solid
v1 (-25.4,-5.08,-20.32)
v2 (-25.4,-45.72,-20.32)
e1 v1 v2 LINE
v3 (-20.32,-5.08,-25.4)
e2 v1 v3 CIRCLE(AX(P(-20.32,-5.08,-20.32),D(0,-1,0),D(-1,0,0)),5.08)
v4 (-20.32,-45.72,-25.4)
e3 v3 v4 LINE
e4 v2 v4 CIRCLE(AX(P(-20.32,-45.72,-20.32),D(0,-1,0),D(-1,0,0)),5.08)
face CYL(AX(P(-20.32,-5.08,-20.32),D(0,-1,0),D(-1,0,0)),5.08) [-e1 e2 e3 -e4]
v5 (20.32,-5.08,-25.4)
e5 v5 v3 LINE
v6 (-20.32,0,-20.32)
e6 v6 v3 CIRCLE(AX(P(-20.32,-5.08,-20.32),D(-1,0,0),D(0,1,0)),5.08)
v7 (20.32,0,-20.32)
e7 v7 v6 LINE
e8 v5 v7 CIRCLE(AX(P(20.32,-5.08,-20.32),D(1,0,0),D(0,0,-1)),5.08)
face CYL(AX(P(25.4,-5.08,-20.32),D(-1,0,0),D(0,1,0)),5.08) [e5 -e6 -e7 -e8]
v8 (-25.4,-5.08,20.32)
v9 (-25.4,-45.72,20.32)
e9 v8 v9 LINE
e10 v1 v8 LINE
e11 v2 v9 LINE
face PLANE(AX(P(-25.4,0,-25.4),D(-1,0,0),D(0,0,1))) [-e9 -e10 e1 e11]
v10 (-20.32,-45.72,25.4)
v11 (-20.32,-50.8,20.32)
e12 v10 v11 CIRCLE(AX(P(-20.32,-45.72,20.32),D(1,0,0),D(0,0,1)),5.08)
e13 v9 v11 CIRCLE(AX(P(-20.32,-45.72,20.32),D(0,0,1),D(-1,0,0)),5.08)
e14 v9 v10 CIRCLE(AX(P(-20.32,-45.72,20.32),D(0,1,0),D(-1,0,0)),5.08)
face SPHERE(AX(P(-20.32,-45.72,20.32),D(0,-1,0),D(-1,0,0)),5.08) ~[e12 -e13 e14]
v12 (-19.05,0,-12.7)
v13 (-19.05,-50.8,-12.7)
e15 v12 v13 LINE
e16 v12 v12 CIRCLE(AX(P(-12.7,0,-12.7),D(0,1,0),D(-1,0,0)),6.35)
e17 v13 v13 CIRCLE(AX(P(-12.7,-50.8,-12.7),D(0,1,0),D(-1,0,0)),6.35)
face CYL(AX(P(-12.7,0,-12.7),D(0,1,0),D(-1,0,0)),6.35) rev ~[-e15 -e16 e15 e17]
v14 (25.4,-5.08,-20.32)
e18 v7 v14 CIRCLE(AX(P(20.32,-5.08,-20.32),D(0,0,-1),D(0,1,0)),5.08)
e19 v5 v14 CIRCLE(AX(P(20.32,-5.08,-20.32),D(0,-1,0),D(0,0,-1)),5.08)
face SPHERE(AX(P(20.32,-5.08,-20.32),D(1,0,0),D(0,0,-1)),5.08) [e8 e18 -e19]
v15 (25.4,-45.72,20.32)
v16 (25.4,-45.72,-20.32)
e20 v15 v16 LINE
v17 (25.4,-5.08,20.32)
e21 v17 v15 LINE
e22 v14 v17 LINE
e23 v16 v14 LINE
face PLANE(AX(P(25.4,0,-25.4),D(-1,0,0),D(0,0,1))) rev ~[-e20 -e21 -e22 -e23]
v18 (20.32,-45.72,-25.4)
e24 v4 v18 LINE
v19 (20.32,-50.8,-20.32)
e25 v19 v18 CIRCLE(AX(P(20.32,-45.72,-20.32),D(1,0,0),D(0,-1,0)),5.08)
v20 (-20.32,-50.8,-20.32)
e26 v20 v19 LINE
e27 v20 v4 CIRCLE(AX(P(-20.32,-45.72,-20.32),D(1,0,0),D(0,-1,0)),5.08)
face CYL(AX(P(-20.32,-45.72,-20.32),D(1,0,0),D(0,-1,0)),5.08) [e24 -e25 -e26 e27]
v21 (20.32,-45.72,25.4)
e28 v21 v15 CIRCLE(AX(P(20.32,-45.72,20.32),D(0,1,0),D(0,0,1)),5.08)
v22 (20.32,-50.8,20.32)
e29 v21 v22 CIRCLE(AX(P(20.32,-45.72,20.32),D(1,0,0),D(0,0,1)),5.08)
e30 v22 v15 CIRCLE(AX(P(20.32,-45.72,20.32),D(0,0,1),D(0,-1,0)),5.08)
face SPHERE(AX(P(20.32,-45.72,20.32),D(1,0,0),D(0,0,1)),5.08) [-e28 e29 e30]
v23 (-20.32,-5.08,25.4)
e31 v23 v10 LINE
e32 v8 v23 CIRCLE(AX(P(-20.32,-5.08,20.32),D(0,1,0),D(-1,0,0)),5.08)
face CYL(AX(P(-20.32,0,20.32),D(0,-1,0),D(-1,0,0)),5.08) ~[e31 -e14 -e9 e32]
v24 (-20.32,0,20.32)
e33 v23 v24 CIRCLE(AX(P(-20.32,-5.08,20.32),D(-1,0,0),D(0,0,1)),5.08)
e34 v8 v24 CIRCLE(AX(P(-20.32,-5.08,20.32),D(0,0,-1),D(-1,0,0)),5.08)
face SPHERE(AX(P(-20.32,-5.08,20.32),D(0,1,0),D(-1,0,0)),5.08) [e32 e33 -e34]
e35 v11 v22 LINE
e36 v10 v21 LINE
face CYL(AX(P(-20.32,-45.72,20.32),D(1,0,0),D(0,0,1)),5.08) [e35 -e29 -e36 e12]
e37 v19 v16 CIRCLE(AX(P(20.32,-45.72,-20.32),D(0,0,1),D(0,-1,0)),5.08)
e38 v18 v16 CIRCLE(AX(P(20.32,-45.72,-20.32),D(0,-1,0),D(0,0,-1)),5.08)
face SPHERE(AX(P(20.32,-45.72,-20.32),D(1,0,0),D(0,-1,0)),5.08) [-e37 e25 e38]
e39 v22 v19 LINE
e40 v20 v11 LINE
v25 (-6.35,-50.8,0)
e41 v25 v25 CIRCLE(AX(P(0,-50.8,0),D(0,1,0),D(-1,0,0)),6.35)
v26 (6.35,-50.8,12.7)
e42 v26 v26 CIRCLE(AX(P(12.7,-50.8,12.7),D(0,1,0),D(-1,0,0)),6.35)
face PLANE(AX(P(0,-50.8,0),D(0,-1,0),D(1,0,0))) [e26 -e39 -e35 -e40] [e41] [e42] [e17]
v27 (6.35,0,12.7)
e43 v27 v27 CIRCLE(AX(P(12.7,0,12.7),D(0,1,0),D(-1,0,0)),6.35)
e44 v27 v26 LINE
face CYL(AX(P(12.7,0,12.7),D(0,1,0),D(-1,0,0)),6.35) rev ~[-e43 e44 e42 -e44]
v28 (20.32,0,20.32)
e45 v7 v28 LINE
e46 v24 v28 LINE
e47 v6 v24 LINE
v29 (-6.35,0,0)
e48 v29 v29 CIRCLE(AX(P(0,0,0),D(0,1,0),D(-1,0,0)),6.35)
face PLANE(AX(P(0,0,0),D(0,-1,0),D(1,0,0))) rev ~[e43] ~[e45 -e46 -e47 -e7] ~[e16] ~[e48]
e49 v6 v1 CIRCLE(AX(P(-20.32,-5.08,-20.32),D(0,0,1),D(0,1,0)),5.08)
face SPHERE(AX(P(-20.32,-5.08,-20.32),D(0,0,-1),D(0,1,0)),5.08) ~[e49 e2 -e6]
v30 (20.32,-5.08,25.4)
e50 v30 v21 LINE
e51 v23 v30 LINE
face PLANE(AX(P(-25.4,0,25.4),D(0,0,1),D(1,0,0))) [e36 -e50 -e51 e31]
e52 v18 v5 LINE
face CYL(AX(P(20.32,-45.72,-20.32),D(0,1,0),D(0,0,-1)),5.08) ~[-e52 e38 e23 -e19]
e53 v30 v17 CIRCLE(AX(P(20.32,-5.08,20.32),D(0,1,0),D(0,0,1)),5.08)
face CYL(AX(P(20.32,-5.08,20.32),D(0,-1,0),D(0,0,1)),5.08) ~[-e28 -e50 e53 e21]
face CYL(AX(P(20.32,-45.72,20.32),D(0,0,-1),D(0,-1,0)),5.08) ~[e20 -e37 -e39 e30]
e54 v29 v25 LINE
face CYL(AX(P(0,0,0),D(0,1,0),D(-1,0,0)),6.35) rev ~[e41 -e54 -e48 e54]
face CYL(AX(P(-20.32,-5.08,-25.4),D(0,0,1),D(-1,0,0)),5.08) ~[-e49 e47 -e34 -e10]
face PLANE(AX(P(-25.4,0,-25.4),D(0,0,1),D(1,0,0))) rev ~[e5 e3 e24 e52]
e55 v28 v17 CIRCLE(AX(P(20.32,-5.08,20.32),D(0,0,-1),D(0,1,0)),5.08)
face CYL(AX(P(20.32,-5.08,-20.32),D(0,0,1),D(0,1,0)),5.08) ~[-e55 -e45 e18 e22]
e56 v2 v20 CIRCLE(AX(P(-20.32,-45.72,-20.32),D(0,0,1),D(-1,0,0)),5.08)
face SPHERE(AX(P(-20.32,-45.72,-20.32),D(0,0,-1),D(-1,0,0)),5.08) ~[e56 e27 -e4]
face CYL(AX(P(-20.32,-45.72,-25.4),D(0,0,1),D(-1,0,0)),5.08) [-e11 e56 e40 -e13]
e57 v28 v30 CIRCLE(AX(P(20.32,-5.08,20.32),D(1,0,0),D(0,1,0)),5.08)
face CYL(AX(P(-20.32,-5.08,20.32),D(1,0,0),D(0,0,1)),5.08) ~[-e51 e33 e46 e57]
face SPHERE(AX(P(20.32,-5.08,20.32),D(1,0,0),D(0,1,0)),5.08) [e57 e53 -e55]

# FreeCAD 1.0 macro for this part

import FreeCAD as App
import Part
import Sketcher

V = App.Vector
Q = App.Units.Quantity


def edges_at(feature, points):
    """Names of the edges that pass closest to the given points."""
    edges = feature.Shape.Edges
    near = lambda p: min(range(len(edges)), key=lambda i: edges[i].distToShape(Part.Vertex(*p))[0])
    return sorted({f"Edge{near(p) + 1}" for p in points})

doc = App.newDocument("Part")
body = doc.addObject("PartDesign::Body", "Body")

# Sketch on XZ plane
sketch1 = body.newObject("Sketcher::SketchObject", "Sketch")
sketch1.AttachmentSupport = (doc.getObject("XZ_Plane"), [""])
sketch1.MapMode = "FlatFace"
sketch1.addGeometry(Part.LineSegment(V(-25, 25, 0), V(-25, -25, 0)), False)
sketch1.addGeometry(Part.LineSegment(V(-25, -25, 0), V(25, -25, 0)), False)
sketch1.addGeometry(Part.LineSegment(V(25, -25, 0), V(25, 25, 0)), False)
sketch1.addGeometry(Part.LineSegment(V(25, 25, 0), V(-25, 25, 0)), False)
sketch1.addConstraint(Sketcher.Constraint("Coincident", 0, 2, 1, 1))
sketch1.addConstraint(Sketcher.Constraint("Coincident", 1, 2, 2, 1))
sketch1.addConstraint(Sketcher.Constraint("Coincident", 2, 2, 3, 1))
sketch1.addConstraint(Sketcher.Constraint("Coincident", 3, 2, 0, 1))
sketch1.addConstraint(Sketcher.Constraint("Vertical", 0))
sketch1.addConstraint(Sketcher.Constraint("Horizontal", 1))
sketch1.addConstraint(Sketcher.Constraint("Vertical", 2))
sketch1.addConstraint(Sketcher.Constraint("Horizontal", 3))
sketch1.addConstraint(Sketcher.Constraint("Symmetric", 0, 2, 2, 2, -1, 1))
sketch1.addConstraint(Sketcher.Constraint("Equal", 3, 0))
sketch1.addConstraint(Sketcher.Constraint("DistanceX", 1, 1, 1, 2, Q("2 in")))
pad1 = body.newObject("PartDesign::Pad", "Pad")
pad1.Profile = sketch1
pad1.Length = Q("2 in")

# Sketch on XZ plane
sketch2 = body.newObject("Sketcher::SketchObject", "Sketch001")
sketch2.AttachmentSupport = (doc.getObject("XZ_Plane"), [""])
sketch2.MapMode = "FlatFace"
sketch2.addGeometry(Part.Circle(V(0, 0, 0), V(0, 0, 1), 6), False)
sketch2.addGeometry(Part.Circle(V(-13, -13, 0), V(0, 0, 1), 6), False)
sketch2.addGeometry(Part.Circle(V(13, 13, 0), V(0, 0, 1), 6), False)
sketch2.addConstraint(Sketcher.Constraint("Coincident", 0, 3, -1, 1))
sketch2.addConstraint(Sketcher.Constraint("Equal", 0, 1))
sketch2.addConstraint(Sketcher.Constraint("Equal", 1, 2))
sketch2.addConstraint(Sketcher.Constraint("Symmetric", 1, 3, 2, 3, -1, 1))
sketch2.addConstraint(Sketcher.Constraint("Diameter", 0, Q("0.5 in")))
sketch2.addConstraint(Sketcher.Constraint("DistanceX", 1, 3, 2, 3, Q("1 in")))
sketch2.addConstraint(Sketcher.Constraint("DistanceY", 1, 3, 2, 3, Q("1 in")))
pocket1 = body.newObject("PartDesign::Pocket", "Pocket")
pocket1.Profile = sketch2
pocket1.Type = "ThroughAll"
pocket1.Reversed = True
doc.recompute()

fillet = body.newObject("PartDesign::Fillet", "Fillet")
fillet.Base = (pocket1, edges_at(pocket1, [(-25.4, -25.4, 25.4)]))
fillet.Radius = Q("0.2 in")
doc.recompute()

fillet2 = body.newObject("PartDesign::Fillet", "Fillet001")
fillet2.Base = (fillet, edges_at(fillet, [(-25.4, 0, -2.54)]))
fillet2.Radius = Q("0.2 in")
doc.recompute()

fillet3 = body.newObject("PartDesign::Fillet", "Fillet002")
fillet3.Base = (fillet2, edges_at(fillet2, [(-25.4, -50.8, -2.54)]))
fillet3.Radius = Q("0.2 in")
doc.recompute()

fillet4 = body.newObject("PartDesign::Fillet", "Fillet003")
fillet4.Base = (fillet3, edges_at(fillet3, [(-25.4, -25.4, -25.4)]))
fillet4.Radius = Q("0.2 in")
doc.recompute()

fillet5 = body.newObject("PartDesign::Fillet", "Fillet004")
fillet5.Base = (fillet4, edges_at(fillet4, [(25.4, 0, 0)]))
fillet5.Radius = Q("0.2 in")

doc.recompute()
